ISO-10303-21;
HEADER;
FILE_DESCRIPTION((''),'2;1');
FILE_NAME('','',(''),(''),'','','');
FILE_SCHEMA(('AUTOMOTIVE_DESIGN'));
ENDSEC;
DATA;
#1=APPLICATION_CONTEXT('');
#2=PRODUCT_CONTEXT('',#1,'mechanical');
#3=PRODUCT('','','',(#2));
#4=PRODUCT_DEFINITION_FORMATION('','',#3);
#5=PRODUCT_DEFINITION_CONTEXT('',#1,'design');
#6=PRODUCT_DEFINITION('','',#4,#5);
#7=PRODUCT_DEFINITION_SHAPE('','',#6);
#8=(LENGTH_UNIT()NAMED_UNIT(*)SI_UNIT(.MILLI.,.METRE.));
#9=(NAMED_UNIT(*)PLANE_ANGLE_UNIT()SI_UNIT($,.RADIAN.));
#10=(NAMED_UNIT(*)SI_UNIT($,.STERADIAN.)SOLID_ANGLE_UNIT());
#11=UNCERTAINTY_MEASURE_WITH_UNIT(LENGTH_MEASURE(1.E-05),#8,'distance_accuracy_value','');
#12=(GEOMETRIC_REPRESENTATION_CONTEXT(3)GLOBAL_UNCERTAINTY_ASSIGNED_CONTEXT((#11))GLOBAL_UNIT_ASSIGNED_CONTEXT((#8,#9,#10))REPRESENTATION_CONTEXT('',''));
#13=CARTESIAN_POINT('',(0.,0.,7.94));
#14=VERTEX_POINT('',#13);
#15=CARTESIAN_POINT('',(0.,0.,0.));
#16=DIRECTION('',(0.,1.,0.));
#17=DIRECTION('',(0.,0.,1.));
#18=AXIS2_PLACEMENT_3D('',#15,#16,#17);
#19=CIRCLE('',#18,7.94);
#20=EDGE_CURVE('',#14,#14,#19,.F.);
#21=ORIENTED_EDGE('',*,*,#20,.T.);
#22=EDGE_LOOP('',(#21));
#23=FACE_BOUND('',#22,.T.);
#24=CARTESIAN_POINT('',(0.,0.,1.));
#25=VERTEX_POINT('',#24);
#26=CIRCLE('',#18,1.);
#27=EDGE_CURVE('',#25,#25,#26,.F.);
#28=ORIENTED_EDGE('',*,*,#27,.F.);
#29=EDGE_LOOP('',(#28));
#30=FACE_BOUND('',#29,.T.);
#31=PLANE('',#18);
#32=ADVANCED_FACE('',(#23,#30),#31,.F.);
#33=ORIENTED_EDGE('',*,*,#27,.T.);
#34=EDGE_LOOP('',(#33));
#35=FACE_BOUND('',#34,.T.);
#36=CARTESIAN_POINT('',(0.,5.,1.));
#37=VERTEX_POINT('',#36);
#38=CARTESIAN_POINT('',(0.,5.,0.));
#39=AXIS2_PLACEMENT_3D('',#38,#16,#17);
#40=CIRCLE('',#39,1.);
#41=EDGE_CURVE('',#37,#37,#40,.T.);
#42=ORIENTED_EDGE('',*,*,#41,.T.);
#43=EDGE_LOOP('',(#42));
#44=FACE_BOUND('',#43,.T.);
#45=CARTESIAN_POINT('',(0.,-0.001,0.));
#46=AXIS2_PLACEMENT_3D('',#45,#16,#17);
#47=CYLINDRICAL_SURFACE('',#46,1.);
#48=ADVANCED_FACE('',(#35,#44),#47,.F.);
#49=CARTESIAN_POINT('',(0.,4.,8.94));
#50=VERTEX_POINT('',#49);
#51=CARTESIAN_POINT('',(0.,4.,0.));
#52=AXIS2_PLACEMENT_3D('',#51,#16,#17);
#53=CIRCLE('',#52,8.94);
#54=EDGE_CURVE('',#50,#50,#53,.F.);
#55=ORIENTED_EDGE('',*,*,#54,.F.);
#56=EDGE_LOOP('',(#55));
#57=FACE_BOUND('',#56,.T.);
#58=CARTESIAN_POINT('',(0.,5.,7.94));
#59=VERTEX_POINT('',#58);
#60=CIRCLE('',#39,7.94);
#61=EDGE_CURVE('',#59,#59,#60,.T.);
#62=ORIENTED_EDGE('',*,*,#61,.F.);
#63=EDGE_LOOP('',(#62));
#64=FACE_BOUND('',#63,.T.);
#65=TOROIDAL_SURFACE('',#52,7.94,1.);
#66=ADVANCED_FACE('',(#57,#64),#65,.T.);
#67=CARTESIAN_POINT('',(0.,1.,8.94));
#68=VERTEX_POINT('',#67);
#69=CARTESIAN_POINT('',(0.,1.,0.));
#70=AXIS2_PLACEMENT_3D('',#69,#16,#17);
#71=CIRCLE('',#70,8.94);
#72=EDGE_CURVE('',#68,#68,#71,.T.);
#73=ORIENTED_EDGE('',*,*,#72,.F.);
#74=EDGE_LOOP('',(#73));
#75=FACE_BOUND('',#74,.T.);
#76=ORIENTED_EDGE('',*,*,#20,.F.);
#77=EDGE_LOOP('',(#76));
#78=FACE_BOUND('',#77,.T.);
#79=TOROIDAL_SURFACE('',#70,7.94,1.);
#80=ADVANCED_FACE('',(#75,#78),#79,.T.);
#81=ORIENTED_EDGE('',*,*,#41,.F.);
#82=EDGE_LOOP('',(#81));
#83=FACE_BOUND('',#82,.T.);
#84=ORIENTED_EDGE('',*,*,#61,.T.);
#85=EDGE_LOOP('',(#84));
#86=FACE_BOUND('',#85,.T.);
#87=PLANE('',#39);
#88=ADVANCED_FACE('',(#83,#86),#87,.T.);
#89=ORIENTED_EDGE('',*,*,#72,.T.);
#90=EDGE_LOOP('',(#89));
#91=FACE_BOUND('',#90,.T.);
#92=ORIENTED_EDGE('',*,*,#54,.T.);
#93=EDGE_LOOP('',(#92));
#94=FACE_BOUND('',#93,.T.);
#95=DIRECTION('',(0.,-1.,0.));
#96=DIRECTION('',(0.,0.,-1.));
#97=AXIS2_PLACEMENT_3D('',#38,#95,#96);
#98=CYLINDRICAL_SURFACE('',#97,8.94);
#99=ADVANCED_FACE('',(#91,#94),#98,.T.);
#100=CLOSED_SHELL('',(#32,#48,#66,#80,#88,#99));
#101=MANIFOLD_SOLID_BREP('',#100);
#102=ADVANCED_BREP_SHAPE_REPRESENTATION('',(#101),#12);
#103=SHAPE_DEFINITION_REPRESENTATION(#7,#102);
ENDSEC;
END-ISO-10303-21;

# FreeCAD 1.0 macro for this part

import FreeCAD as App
import Part
import Sketcher
from FreeCAD import Vector
Q = App.Units.Quantity


def edges_at(feature, points):
    """Names of the edges that pass closest to the given points."""
    edges = feature.Shape.Edges
    near = lambda p: min(range(len(edges)), key=lambda i: edges[i].distToShape(Part.Vertex(*p))[0])
    return sorted({f"Edge{near(p) + 1}" for p in points})

doc = App.newDocument("Part")
params = doc.addObject("Spreadsheet::Sheet", "Params")
for row, (alias, value) in enumerate([
    ("sketch1_diameter", "17.88 mm"),
    ("pad1_length", "5 mm"),
    ("fillet_radius", "1 mm"),
    ("sketch2_diameter", "2 mm"),
], start=1):
    params.set(f"A{row}", alias)
    params.set(f"B{row}", "=" + value)
    params.setAlias(f"B{row}", alias)

body = doc.addObject("PartDesign::Body", "Body")

# Sketch on XZ plane
sketch1 = body.newObject("Sketcher::SketchObject", "Sketch")
sketch1.AttachmentSupport = (doc.getObject("XZ_Plane"), [""])
sketch1.MapMode = "FlatFace"
sketch1.addGeometry(Part.Circle(Vector(0, 0, 0), Vector(0, 0, 1), 9), False)
sketch1.addConstraint(Sketcher.Constraint("Coincident", 0, 3, -1, 1))
sketch1.addConstraint(Sketcher.Constraint("Diameter", 0, Q("17.88 mm")))
sketch1.setExpression("Constraints[1]", "Params.sketch1_diameter")
pad1 = body.newObject("PartDesign::Pad", "Pad")
pad1.Profile = sketch1
pad1.setExpression("Length", "Params.pad1_length")
pad1.Reversed = True
doc.recompute()

fillet = body.newObject("PartDesign::Fillet", "Fillet")
fillet.Base = (pad1, edges_at(pad1, [(0, 0, -8.94), (0, 5, -8.94)]))
fillet.setExpression("Radius", "Params.fillet_radius")

# Sketch on XZ plane
sketch2 = body.newObject("Sketcher::SketchObject", "Sketch001")
sketch2.AttachmentSupport = (doc.getObject("XZ_Plane"), [""])
sketch2.MapMode = "FlatFace"
sketch2.AttachmentOffset = App.Placement(Vector(0, 0, -5), App.Rotation())
sketch2.addGeometry(Part.Circle(Vector(0, 0, 0), Vector(0, 0, 1), 1), False)
sketch2.addConstraint(Sketcher.Constraint("Coincident", 0, 3, -1, 1))
sketch2.addConstraint(Sketcher.Constraint("Diameter", 0, Q("2 mm")))
sketch2.setExpression("Constraints[1]", "Params.sketch2_diameter")
pocket1 = body.newObject("PartDesign::Pocket", "Pocket")
pocket1.Profile = sketch2
pocket1.Type = "UpToFirst"
pocket1.Reversed = True

doc.recompute()
